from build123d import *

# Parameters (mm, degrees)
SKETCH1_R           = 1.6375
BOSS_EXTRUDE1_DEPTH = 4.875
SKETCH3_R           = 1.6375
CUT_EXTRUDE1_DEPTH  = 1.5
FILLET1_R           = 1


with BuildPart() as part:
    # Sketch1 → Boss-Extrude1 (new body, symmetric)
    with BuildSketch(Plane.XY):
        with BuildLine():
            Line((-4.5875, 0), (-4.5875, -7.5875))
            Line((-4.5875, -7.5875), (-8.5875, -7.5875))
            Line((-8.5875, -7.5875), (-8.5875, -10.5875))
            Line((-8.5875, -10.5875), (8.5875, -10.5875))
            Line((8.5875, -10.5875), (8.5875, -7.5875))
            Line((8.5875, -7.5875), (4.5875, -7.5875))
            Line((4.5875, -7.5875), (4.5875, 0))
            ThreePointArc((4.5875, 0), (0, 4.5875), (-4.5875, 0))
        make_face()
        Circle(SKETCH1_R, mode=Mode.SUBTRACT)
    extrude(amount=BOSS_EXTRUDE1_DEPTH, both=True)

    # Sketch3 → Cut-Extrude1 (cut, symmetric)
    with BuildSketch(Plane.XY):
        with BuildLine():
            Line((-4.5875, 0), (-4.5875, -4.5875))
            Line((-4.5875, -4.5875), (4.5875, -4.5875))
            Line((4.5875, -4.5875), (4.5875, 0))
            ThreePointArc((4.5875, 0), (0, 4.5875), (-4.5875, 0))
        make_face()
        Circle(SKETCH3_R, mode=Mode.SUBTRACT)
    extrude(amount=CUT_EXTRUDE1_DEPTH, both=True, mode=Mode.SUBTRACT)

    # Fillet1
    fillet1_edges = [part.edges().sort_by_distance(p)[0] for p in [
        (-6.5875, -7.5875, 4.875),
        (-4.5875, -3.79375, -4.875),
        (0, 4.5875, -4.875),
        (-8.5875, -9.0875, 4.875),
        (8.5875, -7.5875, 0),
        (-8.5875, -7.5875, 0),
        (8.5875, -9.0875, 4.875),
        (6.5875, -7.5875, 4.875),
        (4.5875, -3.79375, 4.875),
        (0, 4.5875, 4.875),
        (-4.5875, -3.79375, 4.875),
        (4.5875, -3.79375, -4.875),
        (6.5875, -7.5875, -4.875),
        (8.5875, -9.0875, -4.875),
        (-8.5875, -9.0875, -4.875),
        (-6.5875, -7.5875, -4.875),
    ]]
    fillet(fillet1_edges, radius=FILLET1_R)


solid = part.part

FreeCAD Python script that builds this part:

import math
import FreeCAD as App
import Part
import Sketcher

V = App.Vector
Q = App.Units.Quantity


def edges_at(feature, points):
    """Names of the edges that pass closest to the given points."""
    edges = feature.Shape.Edges
    near = lambda p: min(range(len(edges)), key=lambda i: edges[i].distToShape(Part.Vertex(*p))[0])
    return sorted({f"Edge{near(p) + 1}" for p in points})

doc = App.newDocument("Part")
params = doc.addObject("Spreadsheet::Sheet", "Params")
for row, (alias, value) in enumerate([
    ("sketch1_width", "4 mm"),
    ("sketch1_height", "3 mm"),
    ("pad1_length", "9.75 mm"),
    ("pocket1_length", "3 mm"),
    ("fillet_radius", "1 mm"),
], start=1):
    params.set(f"A{row}", alias)
    params.set(f"B{row}", "=" + value)
    params.setAlias(f"B{row}", alias)

body = doc.addObject("PartDesign::Body", "Body")

# Sketch on XY plane
sketch1 = body.newObject("Sketcher::SketchObject", "Sketch")
sketch1.AttachmentSupport = (doc.getObject("XY_Plane"), [""])
sketch1.MapMode = "FlatFace"
sketch1.addGeometry([
    Part.LineSegment(V(-4.5875, 0, 0), V(-4.5875, -7.5875, 0)),  # 0
    Part.LineSegment(V(-4.5875, -7.5875, 0), V(-8.5875, -7.5875, 0)),  # 1
    Part.LineSegment(V(-8.5875, -7.5875, 0), V(-8.5875, -10.5875, 0)),  # 2
    Part.LineSegment(V(-8.5875, -10.5875, 0), V(8.5875, -10.5875, 0)),  # 3
    Part.LineSegment(V(8.5875, -10.5875, 0), V(8.5875, -7.5875, 0)),  # 4
    Part.LineSegment(V(8.5875, -7.5875, 0), V(4.5875, -7.5875, 0)),  # 5
    Part.LineSegment(V(4.5875, -7.5875, 0), V(4.5875, 0, 0)),  # 6
    Part.ArcOfCircle(Part.Circle(V(0, 0, 0), V(0, 0, 1), 4.5875), math.radians(0), math.radians(180)),  # 7
    Part.Circle(V(0, 0, 0), V(0, 0, 1), 1.6375),  # 8
], False)
sketch1.addConstraint([
    Sketcher.Constraint("Coincident", 0, 2, 1, 1),
    Sketcher.Constraint("Coincident", 1, 2, 2, 1),
    Sketcher.Constraint("Coincident", 2, 2, 3, 1),
    Sketcher.Constraint("Coincident", 3, 2, 4, 1),
    Sketcher.Constraint("Coincident", 4, 2, 5, 1),
    Sketcher.Constraint("Coincident", 5, 2, 6, 1),
    Sketcher.Constraint("Tangent", 6, 2, 7, 1),
    Sketcher.Constraint("Tangent", 7, 2, 0, 1),
    Sketcher.Constraint("Vertical", 0),
    Sketcher.Constraint("Horizontal", 1),
    Sketcher.Constraint("Vertical", 2),
    Sketcher.Constraint("Horizontal", 3),
    Sketcher.Constraint("Vertical", 4),
    Sketcher.Constraint("Horizontal", 5),
    Sketcher.Constraint("Vertical", 6),
    Sketcher.Constraint("Coincident", 7, 3, -1, 1),
    Sketcher.Constraint("Coincident", 8, 3, -1, 1),
    Sketcher.Constraint("Symmetric", 1, 2, 4, 2, -2),
    Sketcher.Constraint("DistanceX", 1, 2, 1, 1, Q("4 mm")),
    Sketcher.Constraint("DistanceY", 2, 2, 2, 1, Q("3 mm")),
    Sketcher.Constraint("Diameter", 8, Q("3.275 mm")),
    Sketcher.Constraint("Radius", 7, Q("4.5875 mm")),
    Sketcher.Constraint("DistanceY", 0, 2, 0, 1, Q("7.5875 mm")),
])
sketch1.setExpression("Constraints[18]", "Params.sketch1_width")
sketch1.setExpression("Constraints[19]", "Params.sketch1_height")
pad1 = body.newObject("PartDesign::Pad", "Pad")
pad1.Profile = sketch1
pad1.setExpression("Length", "Params.pad1_length")
pad1.Midplane = True

# Sketch on XY plane
sketch2 = body.newObject("Sketcher::SketchObject", "Sketch001")
sketch2.AttachmentSupport = (doc.getObject("XY_Plane"), [""])
sketch2.MapMode = "FlatFace"
sketch2.addGeometry([
    Part.LineSegment(V(-4.5875, 0, 0), V(-4.5875, -4.5875, 0)),  # 0
    Part.LineSegment(V(-4.5875, -4.5875, 0), V(4.5875, -4.5875, 0)),  # 1
    Part.LineSegment(V(4.5875, -4.5875, 0), V(4.5875, 0, 0)),  # 2
    Part.ArcOfCircle(Part.Circle(V(0, 0, 0), V(0, 0, 1), 4.5875), math.radians(0), math.radians(180)),  # 3
    Part.Circle(V(0, 0, 0), V(0, 0, 1), 1.6375),  # 4
], False)
sketch2.addConstraint([
    Sketcher.Constraint("Coincident", 0, 2, 1, 1),
    Sketcher.Constraint("Coincident", 1, 2, 2, 1),
    Sketcher.Constraint("Tangent", 2, 2, 3, 1),
    Sketcher.Constraint("Tangent", 3, 2, 0, 1),
    Sketcher.Constraint("Vertical", 0),
    Sketcher.Constraint("Horizontal", 1),
    Sketcher.Constraint("Vertical", 2),
    Sketcher.Constraint("Coincident", 3, 3, -1, 1),
    Sketcher.Constraint("Coincident", 4, 3, -1, 1),
    Sketcher.Constraint("Diameter", 4, Q("3.275 mm")),
    Sketcher.Constraint("Radius", 3, Q("4.5875 mm")),
    Sketcher.Constraint("DistanceY", 0, 2, 0, 1, Q("4.5875 mm")),
])
pocket1 = body.newObject("PartDesign::Pocket", "Pocket")
pocket1.Profile = sketch2
pocket1.setExpression("Length", "Params.pocket1_length")
pocket1.Midplane = True
doc.recompute()

fillet = body.newObject("PartDesign::Fillet", "Fillet")
fillet.Base = (pocket1, edges_at(pocket1, [
    (-6.588, -7.588, 4.875),
    (-4.588, -3.794, -4.875),
    (0, 4.588, -4.875),
    (-8.588, -9.088, 4.875),
    (8.588, -7.588, 0),
    (-8.588, -7.588, 0),
    (8.588, -9.088, 4.875),
    (6.588, -7.588, 4.875),
    (4.588, -3.794, 4.875),
    (0, 4.588, 4.875),
    (-4.588, -3.794, 4.875),
    (4.588, -3.794, -4.875),
    (6.588, -7.588, -4.875),
    (8.588, -9.088, -4.875),
    (-8.588, -9.088, -4.875),
    (-6.588, -7.588, -4.875),
]))
fillet.setExpression("Radius", "Params.fillet_radius")

doc.recompute()
